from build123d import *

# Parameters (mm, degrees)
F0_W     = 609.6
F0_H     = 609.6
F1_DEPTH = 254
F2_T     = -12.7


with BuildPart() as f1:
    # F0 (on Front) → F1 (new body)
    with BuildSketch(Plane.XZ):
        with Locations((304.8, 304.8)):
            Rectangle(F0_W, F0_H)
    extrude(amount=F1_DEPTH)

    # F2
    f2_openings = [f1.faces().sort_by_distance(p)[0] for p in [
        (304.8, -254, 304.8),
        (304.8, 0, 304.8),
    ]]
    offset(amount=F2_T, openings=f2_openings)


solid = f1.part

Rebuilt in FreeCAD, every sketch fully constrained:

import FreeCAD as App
import Part
import Sketcher
from FreeCAD import Vector
Q = App.Units.Quantity


def faces_at(feature, points):
    """Names of the faces that lie closest to the given points."""
    faces = feature.Shape.Faces
    near = lambda p: min(range(len(faces)), key=lambda i: faces[i].distToShape(Part.Vertex(*p))[0])
    return sorted({f"Face{near(p) + 1}" for p in points})

doc = App.newDocument("Part")
body = doc.addObject("PartDesign::Body", "Body")

# Sketch on XZ plane
sketch1 = body.newObject("Sketcher::SketchObject", "Sketch")
sketch1.AttachmentSupport = (doc.getObject("XZ_Plane"), [""])
sketch1.MapMode = "FlatFace"
sketch1.addGeometry(Part.LineSegment(Vector(0, 610, 0), Vector(0, 0, 0)), False)
sketch1.addGeometry(Part.LineSegment(Vector(0, 0, 0), Vector(610, 0, 0)), False)
sketch1.addGeometry(Part.LineSegment(Vector(610, 0, 0), Vector(610, 610, 0)), False)
sketch1.addGeometry(Part.LineSegment(Vector(610, 610, 0), Vector(0, 610, 0)), False)
sketch1.addConstraint(Sketcher.Constraint("Coincident", 0, 2, 1, 1))
sketch1.addConstraint(Sketcher.Constraint("Coincident", 1, 2, 2, 1))
sketch1.addConstraint(Sketcher.Constraint("Coincident", 2, 2, 3, 1))
sketch1.addConstraint(Sketcher.Constraint("Coincident", 3, 2, 0, 1))
sketch1.addConstraint(Sketcher.Constraint("Vertical", 0))
sketch1.addConstraint(Sketcher.Constraint("Horizontal", 1))
sketch1.addConstraint(Sketcher.Constraint("Vertical", 2))
sketch1.addConstraint(Sketcher.Constraint("Horizontal", 3))
sketch1.addConstraint(Sketcher.Constraint("Coincident", 0, 2, -1, 1))
sketch1.addConstraint(Sketcher.Constraint("Equal", 3, 0))
sketch1.addConstraint(Sketcher.Constraint("DistanceX", 1, 1, 1, 2, Q("24 in")))
pad1 = body.newObject("PartDesign::Pad", "Pad")
pad1.Profile = sketch1
pad1.Length = Q("10 in")
doc.recompute()

thickness = body.newObject("PartDesign::Thickness", "Thickness")
thickness.Base = (pad1, faces_at(pad1, [(304.8, -254, 304.8), (304.8, 0, 304.8)]))
thickness.Value = Q("0.5 in")
thickness.Reversed = True
thickness.Join = "Arc"

doc.recompute()
